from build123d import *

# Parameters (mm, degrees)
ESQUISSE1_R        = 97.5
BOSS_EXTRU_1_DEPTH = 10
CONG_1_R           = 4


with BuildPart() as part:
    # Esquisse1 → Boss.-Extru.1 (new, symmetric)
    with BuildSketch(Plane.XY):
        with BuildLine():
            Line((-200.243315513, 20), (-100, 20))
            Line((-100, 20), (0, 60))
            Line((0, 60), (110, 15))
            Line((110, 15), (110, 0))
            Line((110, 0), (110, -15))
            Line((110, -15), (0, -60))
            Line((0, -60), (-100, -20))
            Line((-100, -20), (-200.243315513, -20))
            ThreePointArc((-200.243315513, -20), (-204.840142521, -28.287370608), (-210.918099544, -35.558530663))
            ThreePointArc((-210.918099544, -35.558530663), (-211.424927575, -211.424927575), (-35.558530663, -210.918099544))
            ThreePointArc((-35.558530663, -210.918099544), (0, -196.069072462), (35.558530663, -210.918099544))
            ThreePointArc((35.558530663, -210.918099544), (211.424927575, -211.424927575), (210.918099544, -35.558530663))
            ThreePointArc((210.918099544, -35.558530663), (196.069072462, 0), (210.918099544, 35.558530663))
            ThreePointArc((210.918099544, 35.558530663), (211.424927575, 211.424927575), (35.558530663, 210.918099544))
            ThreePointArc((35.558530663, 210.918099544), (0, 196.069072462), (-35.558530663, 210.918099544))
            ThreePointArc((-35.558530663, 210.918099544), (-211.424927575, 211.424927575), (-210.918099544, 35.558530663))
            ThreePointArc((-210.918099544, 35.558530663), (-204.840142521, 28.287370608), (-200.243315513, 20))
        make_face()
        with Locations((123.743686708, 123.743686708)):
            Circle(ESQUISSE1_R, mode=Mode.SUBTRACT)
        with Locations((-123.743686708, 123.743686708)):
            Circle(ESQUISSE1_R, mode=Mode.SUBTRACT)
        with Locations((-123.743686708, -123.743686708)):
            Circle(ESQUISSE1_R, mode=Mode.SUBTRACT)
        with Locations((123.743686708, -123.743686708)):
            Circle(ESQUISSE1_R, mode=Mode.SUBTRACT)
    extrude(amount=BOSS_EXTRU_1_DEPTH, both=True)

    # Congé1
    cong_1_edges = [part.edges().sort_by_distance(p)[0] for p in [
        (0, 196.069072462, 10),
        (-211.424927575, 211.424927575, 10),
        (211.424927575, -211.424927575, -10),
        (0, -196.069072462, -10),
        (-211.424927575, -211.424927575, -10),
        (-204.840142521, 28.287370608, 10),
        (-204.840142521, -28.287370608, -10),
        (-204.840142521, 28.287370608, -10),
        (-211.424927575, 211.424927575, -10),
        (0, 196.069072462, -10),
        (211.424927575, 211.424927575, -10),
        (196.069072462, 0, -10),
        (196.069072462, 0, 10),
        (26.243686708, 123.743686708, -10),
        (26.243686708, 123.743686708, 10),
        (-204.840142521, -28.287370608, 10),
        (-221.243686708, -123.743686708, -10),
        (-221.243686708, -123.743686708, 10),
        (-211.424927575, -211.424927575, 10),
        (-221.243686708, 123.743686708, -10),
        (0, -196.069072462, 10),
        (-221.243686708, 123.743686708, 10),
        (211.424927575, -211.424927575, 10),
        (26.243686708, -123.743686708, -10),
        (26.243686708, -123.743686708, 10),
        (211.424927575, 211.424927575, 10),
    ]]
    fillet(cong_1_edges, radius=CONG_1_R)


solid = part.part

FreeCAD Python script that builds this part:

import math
import FreeCAD as App
import Part
import Sketcher
from FreeCAD import Vector
Q = App.Units.Quantity


def edges_at(feature, points):
    """Names of the edges that pass closest to the given points."""
    edges = feature.Shape.Edges
    near = lambda p: min(range(len(edges)), key=lambda i: edges[i].distToShape(Part.Vertex(*p))[0])
    return sorted({f"Edge{near(p) + 1}" for p in points})

doc = App.newDocument("Part")
body = doc.addObject("PartDesign::Body", "Body")

# Sketch on XY plane
sketch1 = body.newObject("Sketcher::SketchObject", "Sketch")
sketch1.AttachmentSupport = (doc.getObject("XY_Plane"), [""])
sketch1.MapMode = "FlatFace"
sketch1.addGeometry([
    Part.LineSegment(Vector(-200.243316, 20, 0), Vector(-100, 20, 0)),  # 0
    Part.LineSegment(Vector(-100, 20, 0), Vector(0, 60, 0)),  # 1
    Part.LineSegment(Vector(0, 60, 0), Vector(110, 15, 0)),  # 2
    Part.LineSegment(Vector(110, 15, 0), Vector(110, -15, 0)),  # 3
    Part.LineSegment(Vector(110, -15, 0), Vector(0, -60, 0)),  # 4
    Part.LineSegment(Vector(0, -60, 0), Vector(-100, -20, 0)),  # 5
    Part.LineSegment(Vector(-100, -20, 0), Vector(-200.243316, -20, 0)),  # 6
    Part.ArcOfCircle(Part.Circle(Vector(-246.069072, 0, 0), Vector(0, 0, 1), 50), math.radians(-45.33024), math.radians(-23.578178)),  # 7
    Part.ArcOfCircle(Part.Circle(Vector(-123.743687, -123.743687, 0), Vector(0, 0, 1), 124), math.radians(134.66976), math.radians(315.33024)),  # 8
    Part.ArcOfCircle(Part.Circle(Vector(0, -246.069072, 0), Vector(0, 0, 1), 50), math.radians(44.66976), math.radians(135.33024)),  # 9
    Part.ArcOfCircle(Part.Circle(Vector(123.743687, -123.743687, 0), Vector(0, 0, 1), 124), math.radians(-135.33024), math.radians(45.33024)),  # 10
    Part.ArcOfCircle(Part.Circle(Vector(246.069072, 0, 0), Vector(0, 0, 1), 50), math.radians(134.66976), math.radians(225.33024)),  # 11
    Part.ArcOfCircle(Part.Circle(Vector(123.743687, 123.743687, 0), Vector(0, 0, 1), 124), math.radians(-45.33024), math.radians(135.33024)),  # 12
    Part.ArcOfCircle(Part.Circle(Vector(0, 246.069072, 0), Vector(0, 0, 1), 50), math.radians(-135.33024), math.radians(-44.66976)),  # 13
    Part.ArcOfCircle(Part.Circle(Vector(-123.743687, 123.743687, 0), Vector(0, 0, 1), 124), math.radians(44.66976), math.radians(225.33024)),  # 14
    Part.ArcOfCircle(Part.Circle(Vector(-246.069072, 0, 0), Vector(0, 0, 1), 50), math.radians(23.578178), math.radians(45.33024)),  # 15
    Part.Circle(Vector(-123.743687, -123.743687, 0), Vector(0, 0, 1), 97.5),  # 16
    Part.Circle(Vector(123.743687, -123.743687, 0), Vector(0, 0, 1), 97.5),  # 17
    Part.Circle(Vector(-123.743687, 123.743687, 0), Vector(0, 0, 1), 97.5),  # 18
    Part.Circle(Vector(123.743687, 123.743687, 0), Vector(0, 0, 1), 97.5),  # 19
], False)
sketch1.addConstraint([
    Sketcher.Constraint("Coincident", 0, 2, 1, 1),
    Sketcher.Constraint("Coincident", 1, 2, 2, 1),
    Sketcher.Constraint("Coincident", 2, 2, 3, 1),
    Sketcher.Constraint("Coincident", 3, 2, 4, 1),
    Sketcher.Constraint("Coincident", 4, 2, 5, 1),
    Sketcher.Constraint("Coincident", 5, 2, 6, 1),
    Sketcher.Constraint("Coincident", 6, 2, 7, 2),
    Sketcher.Constraint("Tangent", 7, 1, 8, 1),
    Sketcher.Constraint("Tangent", 8, 2, 9, 2),
    Sketcher.Constraint("Tangent", 9, 1, 10, 1),
    Sketcher.Constraint("Tangent", 10, 2, 11, 2),
    Sketcher.Constraint("Tangent", 11, 1, 12, 1),
    Sketcher.Constraint("Tangent", 12, 2, 13, 2),
    Sketcher.Constraint("Tangent", 13, 1, 14, 1),
    Sketcher.Constraint("Tangent", 14, 2, 15, 2),
    Sketcher.Constraint("Coincident", 15, 1, 0, 1),
    Sketcher.Constraint("Horizontal", 0),
    Sketcher.Constraint("Vertical", 3),
    Sketcher.Constraint("Horizontal", 6),
    Sketcher.Constraint("Coincident", 15, 3, 7, 3),
    Sketcher.Constraint("Coincident", 16, 3, 8, 3),
    Sketcher.Constraint("Coincident", 17, 3, 10, 3),
    Sketcher.Constraint("Coincident", 18, 3, 14, 3),
    Sketcher.Constraint("Coincident", 19, 3, 12, 3),
    Sketcher.Constraint("Equal", 7, 9),
    Sketcher.Constraint("Equal", 8, 10),
    Sketcher.Constraint("Equal", 9, 11),
    Sketcher.Constraint("Equal", 10, 12),
    Sketcher.Constraint("Equal", 11, 13),
    Sketcher.Constraint("Equal", 12, 14),
    Sketcher.Constraint("Equal", 13, 15),
    Sketcher.Constraint("Equal", 16, 17),
    Sketcher.Constraint("Equal", 17, 18),
    Sketcher.Constraint("Equal", 18, 19),
    Sketcher.Constraint("Symmetric", 7, 3, 11, 3, -1, 1),
    Sketcher.Constraint("Symmetric", 9, 3, 13, 3, -1, 1),
    Sketcher.Constraint("Symmetric", 1, 2, 4, 2, -1, 1),
    Sketcher.Constraint("Symmetric", 8, 3, 10, 3, -2),
    Sketcher.Constraint("Symmetric", 0, 2, 5, 2, -1),
    Sketcher.Constraint("PointOnObject", 1, 2, -2),
    Sketcher.Constraint("Equal", 2, 4),
    Sketcher.Constraint("Diameter", 16, Q("195 mm")),
    Sketcher.Constraint("Radius", 7, Q("50 mm")),
    Sketcher.Constraint("Radius", 8, Q("124 mm")),
    Sketcher.Constraint("DistanceY", 3, 2, 3, 1, Q("30 mm")),
    Sketcher.Constraint("DistanceX", 0, 2, -1, 1, Q("100 mm")),
    Sketcher.Constraint("DistanceY", -1, 1, 0, 2, Q("20 mm")),
    Sketcher.Constraint("DistanceY", -1, 1, 1, 2, Q("60 mm")),
    Sketcher.Constraint("DistanceX", -1, 1, 2, 2, Q("110 mm")),
    Sketcher.Constraint("DistanceX", 7, 1, -1, 1, Q("210.9181 mm")),
    Sketcher.Constraint("DistanceY", 9, 1, -1, 1, Q("210.9181 mm")),
])
pad1 = body.newObject("PartDesign::Pad", "Pad")
pad1.Profile = sketch1
pad1.Length = 20
pad1.Midplane = True
doc.recompute()

fillet = body.newObject("PartDesign::Fillet", "Fillet")
fillet.Base = (pad1, edges_at(pad1, [
    (0, 196.069, 10),
    (-211.425, 211.425, 10),
    (211.425, -211.425, -10),
    (0, -196.069, -10),
    (-211.425, -211.425, -10),
    (-204.84, 28.287, 10),
    (-204.84, -28.287, -10),
    (-204.84, 28.287, -10),
    (-211.425, 211.425, -10),
    (0, 196.069, -10),
    (211.425, 211.425, -10),
    (196.069, 0, -10),
    (196.069, 0, 10),
    (26.244, 123.744, -10),
    (26.244, 123.744, 10),
    (-204.84, -28.287, 10),
    (-221.244, -123.744, -10),
    (-221.244, -123.744, 10),
    (-211.425, -211.425, 10),
    (-221.244, 123.744, -10),
    (0, -196.069, 10),
    (-221.244, 123.744, 10),
    (211.425, -211.425, 10),
    (26.244, -123.744, -10),
    (26.244, -123.744, 10),
    (211.425, 211.425, 10),
]))
fillet.Radius = 4

doc.recompute()
